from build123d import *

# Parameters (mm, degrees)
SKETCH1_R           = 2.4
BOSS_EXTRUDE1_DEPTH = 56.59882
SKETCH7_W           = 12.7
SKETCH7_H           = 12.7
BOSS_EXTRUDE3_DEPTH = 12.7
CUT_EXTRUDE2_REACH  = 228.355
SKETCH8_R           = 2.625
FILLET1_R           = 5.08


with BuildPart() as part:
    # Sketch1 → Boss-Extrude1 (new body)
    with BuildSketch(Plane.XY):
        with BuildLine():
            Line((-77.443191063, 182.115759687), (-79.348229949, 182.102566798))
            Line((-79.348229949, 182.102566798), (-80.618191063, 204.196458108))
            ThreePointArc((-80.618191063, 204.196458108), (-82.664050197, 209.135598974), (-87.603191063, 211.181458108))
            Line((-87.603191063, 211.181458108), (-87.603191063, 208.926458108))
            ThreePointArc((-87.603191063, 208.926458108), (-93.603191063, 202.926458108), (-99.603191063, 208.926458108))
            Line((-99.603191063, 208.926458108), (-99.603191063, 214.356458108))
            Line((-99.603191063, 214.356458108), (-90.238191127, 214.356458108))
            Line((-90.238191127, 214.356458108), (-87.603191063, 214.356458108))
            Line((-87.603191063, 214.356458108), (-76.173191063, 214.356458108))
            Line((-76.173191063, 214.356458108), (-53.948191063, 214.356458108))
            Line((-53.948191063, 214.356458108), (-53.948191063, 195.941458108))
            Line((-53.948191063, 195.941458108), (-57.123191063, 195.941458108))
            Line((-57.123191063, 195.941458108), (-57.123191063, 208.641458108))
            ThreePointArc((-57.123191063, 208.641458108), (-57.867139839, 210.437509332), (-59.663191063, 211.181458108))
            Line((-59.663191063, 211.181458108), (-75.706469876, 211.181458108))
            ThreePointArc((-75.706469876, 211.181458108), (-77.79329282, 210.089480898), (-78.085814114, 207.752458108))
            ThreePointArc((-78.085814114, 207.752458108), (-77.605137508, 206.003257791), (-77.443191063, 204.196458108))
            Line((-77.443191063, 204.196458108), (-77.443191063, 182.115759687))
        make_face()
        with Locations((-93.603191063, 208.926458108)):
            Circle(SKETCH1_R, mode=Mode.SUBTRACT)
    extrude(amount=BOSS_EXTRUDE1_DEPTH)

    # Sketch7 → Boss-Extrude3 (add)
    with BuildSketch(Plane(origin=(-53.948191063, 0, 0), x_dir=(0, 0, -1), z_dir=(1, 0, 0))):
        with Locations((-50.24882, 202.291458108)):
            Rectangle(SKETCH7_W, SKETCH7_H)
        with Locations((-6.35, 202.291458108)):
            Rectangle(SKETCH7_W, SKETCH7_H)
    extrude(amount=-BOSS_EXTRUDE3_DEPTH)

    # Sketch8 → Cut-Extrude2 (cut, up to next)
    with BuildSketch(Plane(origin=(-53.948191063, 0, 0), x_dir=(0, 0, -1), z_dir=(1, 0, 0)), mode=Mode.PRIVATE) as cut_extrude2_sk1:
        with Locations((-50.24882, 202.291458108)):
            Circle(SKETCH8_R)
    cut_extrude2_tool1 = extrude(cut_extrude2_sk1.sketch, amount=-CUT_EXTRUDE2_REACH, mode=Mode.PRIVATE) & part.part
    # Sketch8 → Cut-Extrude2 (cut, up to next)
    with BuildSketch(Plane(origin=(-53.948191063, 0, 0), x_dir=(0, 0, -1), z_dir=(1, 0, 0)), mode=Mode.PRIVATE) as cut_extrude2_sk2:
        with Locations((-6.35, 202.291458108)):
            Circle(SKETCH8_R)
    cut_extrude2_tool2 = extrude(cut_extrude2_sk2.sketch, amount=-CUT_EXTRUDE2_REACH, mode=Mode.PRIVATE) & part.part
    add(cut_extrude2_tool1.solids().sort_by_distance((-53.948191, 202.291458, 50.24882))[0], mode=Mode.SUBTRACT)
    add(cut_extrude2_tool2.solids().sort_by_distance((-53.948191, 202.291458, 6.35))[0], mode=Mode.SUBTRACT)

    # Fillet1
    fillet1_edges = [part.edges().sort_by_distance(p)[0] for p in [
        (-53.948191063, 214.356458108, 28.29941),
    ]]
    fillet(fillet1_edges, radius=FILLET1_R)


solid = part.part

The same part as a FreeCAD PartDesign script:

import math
import FreeCAD as App
import Part
import Sketcher
Q = App.Units.Quantity


def edges_at(feature, points):
    """Names of the edges that pass closest to the given points."""
    edges = feature.Shape.Edges
    near = lambda p: min(range(len(edges)), key=lambda i: edges[i].distToShape(Part.Vertex(*p))[0])
    return sorted({f"Edge{near(p) + 1}" for p in points})

doc = App.newDocument("Part")
body = doc.addObject("PartDesign::Body", "Body")

# Sketch on XY plane
sketch1 = doc.addObject("Sketcher::SketchObject", "Sketch")
body.addObject(sketch1)
sketch1.AttachmentSupport = (doc.XY_Plane, [""])
sketch1.MapMode = "FlatFace"
sketch1.addGeometry([
    Part.LineSegment(App.Vector(-79.34823, 182.102567, 0), App.Vector(-77.443191, 182.11576, 0)),  # 0
    Part.LineSegment(App.Vector(-77.443191, 182.11576, 0), App.Vector(-77.443191, 204.196458, 0)),  # 1
    Part.ArcOfCircle(Part.Circle(App.Vector(-87.603191, 204.196458, 0), App.Vector(0, 0, 1), 10.16), math.radians(0), math.radians(20.487315)),  # 2
    Part.ArcOfCircle(Part.Circle(App.Vector(-75.70647, 208.641458, 0), App.Vector(0, 0, 1), 2.54), math.radians(90), math.radians(200.487315)),  # 3
    Part.LineSegment(App.Vector(-75.70647, 211.181458, 0), App.Vector(-59.663191, 211.181458, 0)),  # 4
    Part.ArcOfCircle(Part.Circle(App.Vector(-59.663191, 208.641458, 0), App.Vector(0, 0, 1), 2.54), math.radians(0), math.radians(90)),  # 5
    Part.LineSegment(App.Vector(-57.123191, 208.641458, 0), App.Vector(-57.123191, 195.941458, 0)),  # 6
    Part.LineSegment(App.Vector(-57.123191, 195.941458, 0), App.Vector(-53.948191, 195.941458, 0)),  # 7
    Part.LineSegment(App.Vector(-53.948191, 195.941458, 0), App.Vector(-53.948191, 214.356458, 0)),  # 8
    Part.LineSegment(App.Vector(-53.948191, 214.356458, 0), App.Vector(-99.603191, 214.356458, 0)),  # 9
    Part.LineSegment(App.Vector(-99.603191, 214.356458, 0), App.Vector(-99.603191, 208.926458, 0)),  # 10
    Part.ArcOfCircle(Part.Circle(App.Vector(-93.603191, 208.926458, 0), App.Vector(0, 0, 1), 6), math.radians(180), math.radians(360)),  # 11
    Part.LineSegment(App.Vector(-87.603191, 208.926458, 0), App.Vector(-87.603191, 211.181458, 0)),  # 12
    Part.ArcOfCircle(Part.Circle(App.Vector(-87.603191, 204.196458, 0), App.Vector(0, 0, 1), 6.985), math.radians(0), math.radians(90)),  # 13
    Part.LineSegment(App.Vector(-80.618191, 204.196458, 0), App.Vector(-79.34823, 182.102567, 0)),  # 14
    Part.Circle(App.Vector(-93.603191, 208.926458, 0), App.Vector(0, 0, 1), 2.4),  # 15
], False)
sketch1.addConstraint([
    Sketcher.Constraint("Coincident", 0, 2, 1, 1),
    Sketcher.Constraint("Tangent", 1, 2, 2, 1),
    Sketcher.Constraint("Tangent", 2, 2, 3, 2),
    Sketcher.Constraint("Tangent", 3, 1, 4, 1),
    Sketcher.Constraint("Tangent", 4, 2, 5, 2),
    Sketcher.Constraint("Tangent", 5, 1, 6, 1),
    Sketcher.Constraint("Coincident", 6, 2, 7, 1),
    Sketcher.Constraint("Coincident", 7, 2, 8, 1),
    Sketcher.Constraint("Coincident", 8, 2, 9, 1),
    Sketcher.Constraint("Coincident", 9, 2, 10, 1),
    Sketcher.Constraint("Tangent", 10, 2, 11, 1),
    Sketcher.Constraint("Tangent", 11, 2, 12, 1),
    Sketcher.Constraint("Coincident", 12, 2, 13, 2),
    Sketcher.Constraint("Coincident", 13, 1, 14, 1),
    Sketcher.Constraint("Coincident", 14, 2, 0, 1),
    Sketcher.Constraint("Vertical", 1),
    Sketcher.Constraint("Horizontal", 4),
    Sketcher.Constraint("Vertical", 6),
    Sketcher.Constraint("Horizontal", 7),
    Sketcher.Constraint("Vertical", 8),
    Sketcher.Constraint("Horizontal", 9),
    Sketcher.Constraint("Vertical", 10),
    Sketcher.Constraint("Vertical", 12),
    Sketcher.Constraint("Coincident", 13, 3, 2, 3),
    Sketcher.Constraint("Coincident", 15, 3, 11, 3),
    Sketcher.Constraint("Equal", 3, 5),
    Sketcher.Constraint("Horizontal", 4, 2, 12, 2),
    Sketcher.Constraint("Horizontal", 1, 2, 13, 1),
    Sketcher.Constraint("Vertical", 13, 3, 11, 2),
    Sketcher.Constraint("Radius", 2, Q("0.4 in")),
    Sketcher.Constraint("Radius", 3, Q("0.1 in")),
    Sketcher.Constraint("DistanceY", 6, 2, 6, 1, Q("0.5 in")),
    Sketcher.Constraint("Radius", 13, Q("0.275 in")),
    Sketcher.Constraint("DistanceX", 2, 3, 5, 3, Q("1.1 in")),
    Sketcher.Constraint("DistanceY", 2, 3, 9, 2, Q("0.4 in")),
    Sketcher.Constraint("Diameter", 15, 4.8),
    Sketcher.Constraint("DistanceX", 7, 1, 7, 2, Q("0.125 in")),
    Sketcher.Constraint("Radius", 11, 6.0),
    Sketcher.Constraint("DistanceY", 1, 1, 1, 2, 22.080698),
    Sketcher.Constraint("DistanceY", 10, 2, 10, 1, 5.43),
    Sketcher.Constraint("Distance", 14, 22.13036),
    Sketcher.Constraint("DistanceX", 2, 3, -1, 1, 87.603191),
    Sketcher.Constraint("DistanceY", -1, 1, 2, 3, 204.196458),
    Sketcher.Constraint("DistanceX", 14, 2, -1, 1, 79.34823),
])
pad1 = doc.addObject("PartDesign::Pad", "Pad")
body.addObject(pad1)
pad1.Profile = sketch1
pad1.Length = Q("2.2283 in")

# Sketch on YZ plane
sketch2 = doc.addObject("Sketcher::SketchObject", "Sketch001")
body.addObject(sketch2)
sketch2.AttachmentSupport = (doc.YZ_Plane, [""])
sketch2.MapMode = "FlatFace"
sketch2.AttachmentOffset = App.Placement(App.Vector(0, 0, -53.948191), App.Rotation())
sketch2.addGeometry([
    Part.LineSegment(App.Vector(208.641458, 56.59882, 0), App.Vector(195.941458, 56.59882, 0)),  # 0
    Part.LineSegment(App.Vector(195.941458, 56.59882, 0), App.Vector(195.941458, 43.89882, 0)),  # 1
    Part.LineSegment(App.Vector(195.941458, 43.89882, 0), App.Vector(208.641458, 43.89882, 0)),  # 2
    Part.LineSegment(App.Vector(208.641458, 43.89882, 0), App.Vector(208.641458, 56.59882, 0)),  # 3
    Part.LineSegment(App.Vector(208.641458, 12.7, 0), App.Vector(195.941458, 12.7, 0)),  # 4
    Part.LineSegment(App.Vector(195.941458, 12.7, 0), App.Vector(195.941458, 0, 0)),  # 5
    Part.LineSegment(App.Vector(195.941458, 0, 0), App.Vector(208.641458, 0, 0)),  # 6
    Part.LineSegment(App.Vector(208.641458, 0, 0), App.Vector(208.641458, 12.7, 0)),  # 7
], False)
sketch2.addConstraint([
    Sketcher.Constraint("Coincident", 0, 2, 1, 1),
    Sketcher.Constraint("Coincident", 1, 2, 2, 1),
    Sketcher.Constraint("Coincident", 2, 2, 3, 1),
    Sketcher.Constraint("Coincident", 3, 2, 0, 1),
    Sketcher.Constraint("Coincident", 4, 2, 5, 1),
    Sketcher.Constraint("Coincident", 5, 2, 6, 1),
    Sketcher.Constraint("Coincident", 6, 2, 7, 1),
    Sketcher.Constraint("Coincident", 7, 2, 4, 1),
    Sketcher.Constraint("Horizontal", 0),
    Sketcher.Constraint("Vertical", 1),
    Sketcher.Constraint("Horizontal", 2),
    Sketcher.Constraint("Vertical", 3),
    Sketcher.Constraint("Horizontal", 4),
    Sketcher.Constraint("Vertical", 5),
    Sketcher.Constraint("Horizontal", 6),
    Sketcher.Constraint("Vertical", 7),
    Sketcher.Constraint("PointOnObject", 5, 2, -1),
    Sketcher.Constraint("Vertical", 1, 2, 4, 2),
    Sketcher.Constraint("Vertical", 3, 2, 6, 2),
    Sketcher.Constraint("Equal", 6, 1),
    Sketcher.Constraint("Equal", 3, 5),
    Sketcher.Constraint("DistanceX", 0, 2, 0, 1, Q("0.5 in")),
    Sketcher.Constraint("DistanceY", -1, 1, 0, 2, Q("2.2283 in")),
    Sketcher.Constraint("DistanceX", -1, 1, 0, 2, 195.941458),
])
pad2 = doc.addObject("PartDesign::Pad", "Pad001")
body.addObject(pad2)
pad2.Profile = sketch2
pad2.Length = Q("0.5 in")
pad2.Reversed = True

# Sketch on YZ plane
sketch3 = doc.addObject("Sketcher::SketchObject", "Sketch002")
body.addObject(sketch3)
sketch3.AttachmentSupport = (doc.YZ_Plane, [""])
sketch3.MapMode = "FlatFace"
sketch3.AttachmentOffset = App.Placement(App.Vector(0, 0, -53.948191), App.Rotation())
sketch3.addGeometry(Part.Circle(App.Vector(202.291458, 50.24882, 0), App.Vector(0, 0, 1), 2.625), False)
sketch3.addConstraint([
    Sketcher.Constraint("Diameter", 0, 5.25),
    Sketcher.Constraint("DistanceY", -1, 1, 0, 3, Q("1.9783 in")),
    Sketcher.Constraint("DistanceX", -1, 1, 0, 3, 202.291458),
])
pocket1 = doc.addObject("PartDesign::Pocket", "Pocket")
body.addObject(pocket1)
pocket1.Profile = sketch3
pocket1.Type = "UpToFirst"

# Sketch on YZ plane
sketch4 = doc.addObject("Sketcher::SketchObject", "Sketch003")
body.addObject(sketch4)
sketch4.AttachmentSupport = (doc.YZ_Plane, [""])
sketch4.MapMode = "FlatFace"
sketch4.AttachmentOffset = App.Placement(App.Vector(0, 0, -53.948191), App.Rotation())
sketch4.addGeometry(Part.Circle(App.Vector(202.291458, 6.35, 0), App.Vector(0, 0, 1), 2.625), False)
sketch4.addConstraint([
    Sketcher.Constraint("Diameter", 0, 5.25),
    Sketcher.Constraint("DistanceY", -1, 1, 0, 3, Q("0.25 in")),
    Sketcher.Constraint("DistanceX", -1, 1, 0, 3, 202.291458),
])
pocket2 = doc.addObject("PartDesign::Pocket", "Pocket001")
body.addObject(pocket2)
pocket2.Profile = sketch4
pocket2.Type = "UpToFirst"
doc.recompute()

fillet = doc.addObject("PartDesign::Fillet", "Fillet")
body.addObject(fillet)
fillet.Base = (pocket2, edges_at(pocket2, [(-53.948, 214.356, 28.299)]))
fillet.Radius = Q("0.2 in")

doc.recompute()
